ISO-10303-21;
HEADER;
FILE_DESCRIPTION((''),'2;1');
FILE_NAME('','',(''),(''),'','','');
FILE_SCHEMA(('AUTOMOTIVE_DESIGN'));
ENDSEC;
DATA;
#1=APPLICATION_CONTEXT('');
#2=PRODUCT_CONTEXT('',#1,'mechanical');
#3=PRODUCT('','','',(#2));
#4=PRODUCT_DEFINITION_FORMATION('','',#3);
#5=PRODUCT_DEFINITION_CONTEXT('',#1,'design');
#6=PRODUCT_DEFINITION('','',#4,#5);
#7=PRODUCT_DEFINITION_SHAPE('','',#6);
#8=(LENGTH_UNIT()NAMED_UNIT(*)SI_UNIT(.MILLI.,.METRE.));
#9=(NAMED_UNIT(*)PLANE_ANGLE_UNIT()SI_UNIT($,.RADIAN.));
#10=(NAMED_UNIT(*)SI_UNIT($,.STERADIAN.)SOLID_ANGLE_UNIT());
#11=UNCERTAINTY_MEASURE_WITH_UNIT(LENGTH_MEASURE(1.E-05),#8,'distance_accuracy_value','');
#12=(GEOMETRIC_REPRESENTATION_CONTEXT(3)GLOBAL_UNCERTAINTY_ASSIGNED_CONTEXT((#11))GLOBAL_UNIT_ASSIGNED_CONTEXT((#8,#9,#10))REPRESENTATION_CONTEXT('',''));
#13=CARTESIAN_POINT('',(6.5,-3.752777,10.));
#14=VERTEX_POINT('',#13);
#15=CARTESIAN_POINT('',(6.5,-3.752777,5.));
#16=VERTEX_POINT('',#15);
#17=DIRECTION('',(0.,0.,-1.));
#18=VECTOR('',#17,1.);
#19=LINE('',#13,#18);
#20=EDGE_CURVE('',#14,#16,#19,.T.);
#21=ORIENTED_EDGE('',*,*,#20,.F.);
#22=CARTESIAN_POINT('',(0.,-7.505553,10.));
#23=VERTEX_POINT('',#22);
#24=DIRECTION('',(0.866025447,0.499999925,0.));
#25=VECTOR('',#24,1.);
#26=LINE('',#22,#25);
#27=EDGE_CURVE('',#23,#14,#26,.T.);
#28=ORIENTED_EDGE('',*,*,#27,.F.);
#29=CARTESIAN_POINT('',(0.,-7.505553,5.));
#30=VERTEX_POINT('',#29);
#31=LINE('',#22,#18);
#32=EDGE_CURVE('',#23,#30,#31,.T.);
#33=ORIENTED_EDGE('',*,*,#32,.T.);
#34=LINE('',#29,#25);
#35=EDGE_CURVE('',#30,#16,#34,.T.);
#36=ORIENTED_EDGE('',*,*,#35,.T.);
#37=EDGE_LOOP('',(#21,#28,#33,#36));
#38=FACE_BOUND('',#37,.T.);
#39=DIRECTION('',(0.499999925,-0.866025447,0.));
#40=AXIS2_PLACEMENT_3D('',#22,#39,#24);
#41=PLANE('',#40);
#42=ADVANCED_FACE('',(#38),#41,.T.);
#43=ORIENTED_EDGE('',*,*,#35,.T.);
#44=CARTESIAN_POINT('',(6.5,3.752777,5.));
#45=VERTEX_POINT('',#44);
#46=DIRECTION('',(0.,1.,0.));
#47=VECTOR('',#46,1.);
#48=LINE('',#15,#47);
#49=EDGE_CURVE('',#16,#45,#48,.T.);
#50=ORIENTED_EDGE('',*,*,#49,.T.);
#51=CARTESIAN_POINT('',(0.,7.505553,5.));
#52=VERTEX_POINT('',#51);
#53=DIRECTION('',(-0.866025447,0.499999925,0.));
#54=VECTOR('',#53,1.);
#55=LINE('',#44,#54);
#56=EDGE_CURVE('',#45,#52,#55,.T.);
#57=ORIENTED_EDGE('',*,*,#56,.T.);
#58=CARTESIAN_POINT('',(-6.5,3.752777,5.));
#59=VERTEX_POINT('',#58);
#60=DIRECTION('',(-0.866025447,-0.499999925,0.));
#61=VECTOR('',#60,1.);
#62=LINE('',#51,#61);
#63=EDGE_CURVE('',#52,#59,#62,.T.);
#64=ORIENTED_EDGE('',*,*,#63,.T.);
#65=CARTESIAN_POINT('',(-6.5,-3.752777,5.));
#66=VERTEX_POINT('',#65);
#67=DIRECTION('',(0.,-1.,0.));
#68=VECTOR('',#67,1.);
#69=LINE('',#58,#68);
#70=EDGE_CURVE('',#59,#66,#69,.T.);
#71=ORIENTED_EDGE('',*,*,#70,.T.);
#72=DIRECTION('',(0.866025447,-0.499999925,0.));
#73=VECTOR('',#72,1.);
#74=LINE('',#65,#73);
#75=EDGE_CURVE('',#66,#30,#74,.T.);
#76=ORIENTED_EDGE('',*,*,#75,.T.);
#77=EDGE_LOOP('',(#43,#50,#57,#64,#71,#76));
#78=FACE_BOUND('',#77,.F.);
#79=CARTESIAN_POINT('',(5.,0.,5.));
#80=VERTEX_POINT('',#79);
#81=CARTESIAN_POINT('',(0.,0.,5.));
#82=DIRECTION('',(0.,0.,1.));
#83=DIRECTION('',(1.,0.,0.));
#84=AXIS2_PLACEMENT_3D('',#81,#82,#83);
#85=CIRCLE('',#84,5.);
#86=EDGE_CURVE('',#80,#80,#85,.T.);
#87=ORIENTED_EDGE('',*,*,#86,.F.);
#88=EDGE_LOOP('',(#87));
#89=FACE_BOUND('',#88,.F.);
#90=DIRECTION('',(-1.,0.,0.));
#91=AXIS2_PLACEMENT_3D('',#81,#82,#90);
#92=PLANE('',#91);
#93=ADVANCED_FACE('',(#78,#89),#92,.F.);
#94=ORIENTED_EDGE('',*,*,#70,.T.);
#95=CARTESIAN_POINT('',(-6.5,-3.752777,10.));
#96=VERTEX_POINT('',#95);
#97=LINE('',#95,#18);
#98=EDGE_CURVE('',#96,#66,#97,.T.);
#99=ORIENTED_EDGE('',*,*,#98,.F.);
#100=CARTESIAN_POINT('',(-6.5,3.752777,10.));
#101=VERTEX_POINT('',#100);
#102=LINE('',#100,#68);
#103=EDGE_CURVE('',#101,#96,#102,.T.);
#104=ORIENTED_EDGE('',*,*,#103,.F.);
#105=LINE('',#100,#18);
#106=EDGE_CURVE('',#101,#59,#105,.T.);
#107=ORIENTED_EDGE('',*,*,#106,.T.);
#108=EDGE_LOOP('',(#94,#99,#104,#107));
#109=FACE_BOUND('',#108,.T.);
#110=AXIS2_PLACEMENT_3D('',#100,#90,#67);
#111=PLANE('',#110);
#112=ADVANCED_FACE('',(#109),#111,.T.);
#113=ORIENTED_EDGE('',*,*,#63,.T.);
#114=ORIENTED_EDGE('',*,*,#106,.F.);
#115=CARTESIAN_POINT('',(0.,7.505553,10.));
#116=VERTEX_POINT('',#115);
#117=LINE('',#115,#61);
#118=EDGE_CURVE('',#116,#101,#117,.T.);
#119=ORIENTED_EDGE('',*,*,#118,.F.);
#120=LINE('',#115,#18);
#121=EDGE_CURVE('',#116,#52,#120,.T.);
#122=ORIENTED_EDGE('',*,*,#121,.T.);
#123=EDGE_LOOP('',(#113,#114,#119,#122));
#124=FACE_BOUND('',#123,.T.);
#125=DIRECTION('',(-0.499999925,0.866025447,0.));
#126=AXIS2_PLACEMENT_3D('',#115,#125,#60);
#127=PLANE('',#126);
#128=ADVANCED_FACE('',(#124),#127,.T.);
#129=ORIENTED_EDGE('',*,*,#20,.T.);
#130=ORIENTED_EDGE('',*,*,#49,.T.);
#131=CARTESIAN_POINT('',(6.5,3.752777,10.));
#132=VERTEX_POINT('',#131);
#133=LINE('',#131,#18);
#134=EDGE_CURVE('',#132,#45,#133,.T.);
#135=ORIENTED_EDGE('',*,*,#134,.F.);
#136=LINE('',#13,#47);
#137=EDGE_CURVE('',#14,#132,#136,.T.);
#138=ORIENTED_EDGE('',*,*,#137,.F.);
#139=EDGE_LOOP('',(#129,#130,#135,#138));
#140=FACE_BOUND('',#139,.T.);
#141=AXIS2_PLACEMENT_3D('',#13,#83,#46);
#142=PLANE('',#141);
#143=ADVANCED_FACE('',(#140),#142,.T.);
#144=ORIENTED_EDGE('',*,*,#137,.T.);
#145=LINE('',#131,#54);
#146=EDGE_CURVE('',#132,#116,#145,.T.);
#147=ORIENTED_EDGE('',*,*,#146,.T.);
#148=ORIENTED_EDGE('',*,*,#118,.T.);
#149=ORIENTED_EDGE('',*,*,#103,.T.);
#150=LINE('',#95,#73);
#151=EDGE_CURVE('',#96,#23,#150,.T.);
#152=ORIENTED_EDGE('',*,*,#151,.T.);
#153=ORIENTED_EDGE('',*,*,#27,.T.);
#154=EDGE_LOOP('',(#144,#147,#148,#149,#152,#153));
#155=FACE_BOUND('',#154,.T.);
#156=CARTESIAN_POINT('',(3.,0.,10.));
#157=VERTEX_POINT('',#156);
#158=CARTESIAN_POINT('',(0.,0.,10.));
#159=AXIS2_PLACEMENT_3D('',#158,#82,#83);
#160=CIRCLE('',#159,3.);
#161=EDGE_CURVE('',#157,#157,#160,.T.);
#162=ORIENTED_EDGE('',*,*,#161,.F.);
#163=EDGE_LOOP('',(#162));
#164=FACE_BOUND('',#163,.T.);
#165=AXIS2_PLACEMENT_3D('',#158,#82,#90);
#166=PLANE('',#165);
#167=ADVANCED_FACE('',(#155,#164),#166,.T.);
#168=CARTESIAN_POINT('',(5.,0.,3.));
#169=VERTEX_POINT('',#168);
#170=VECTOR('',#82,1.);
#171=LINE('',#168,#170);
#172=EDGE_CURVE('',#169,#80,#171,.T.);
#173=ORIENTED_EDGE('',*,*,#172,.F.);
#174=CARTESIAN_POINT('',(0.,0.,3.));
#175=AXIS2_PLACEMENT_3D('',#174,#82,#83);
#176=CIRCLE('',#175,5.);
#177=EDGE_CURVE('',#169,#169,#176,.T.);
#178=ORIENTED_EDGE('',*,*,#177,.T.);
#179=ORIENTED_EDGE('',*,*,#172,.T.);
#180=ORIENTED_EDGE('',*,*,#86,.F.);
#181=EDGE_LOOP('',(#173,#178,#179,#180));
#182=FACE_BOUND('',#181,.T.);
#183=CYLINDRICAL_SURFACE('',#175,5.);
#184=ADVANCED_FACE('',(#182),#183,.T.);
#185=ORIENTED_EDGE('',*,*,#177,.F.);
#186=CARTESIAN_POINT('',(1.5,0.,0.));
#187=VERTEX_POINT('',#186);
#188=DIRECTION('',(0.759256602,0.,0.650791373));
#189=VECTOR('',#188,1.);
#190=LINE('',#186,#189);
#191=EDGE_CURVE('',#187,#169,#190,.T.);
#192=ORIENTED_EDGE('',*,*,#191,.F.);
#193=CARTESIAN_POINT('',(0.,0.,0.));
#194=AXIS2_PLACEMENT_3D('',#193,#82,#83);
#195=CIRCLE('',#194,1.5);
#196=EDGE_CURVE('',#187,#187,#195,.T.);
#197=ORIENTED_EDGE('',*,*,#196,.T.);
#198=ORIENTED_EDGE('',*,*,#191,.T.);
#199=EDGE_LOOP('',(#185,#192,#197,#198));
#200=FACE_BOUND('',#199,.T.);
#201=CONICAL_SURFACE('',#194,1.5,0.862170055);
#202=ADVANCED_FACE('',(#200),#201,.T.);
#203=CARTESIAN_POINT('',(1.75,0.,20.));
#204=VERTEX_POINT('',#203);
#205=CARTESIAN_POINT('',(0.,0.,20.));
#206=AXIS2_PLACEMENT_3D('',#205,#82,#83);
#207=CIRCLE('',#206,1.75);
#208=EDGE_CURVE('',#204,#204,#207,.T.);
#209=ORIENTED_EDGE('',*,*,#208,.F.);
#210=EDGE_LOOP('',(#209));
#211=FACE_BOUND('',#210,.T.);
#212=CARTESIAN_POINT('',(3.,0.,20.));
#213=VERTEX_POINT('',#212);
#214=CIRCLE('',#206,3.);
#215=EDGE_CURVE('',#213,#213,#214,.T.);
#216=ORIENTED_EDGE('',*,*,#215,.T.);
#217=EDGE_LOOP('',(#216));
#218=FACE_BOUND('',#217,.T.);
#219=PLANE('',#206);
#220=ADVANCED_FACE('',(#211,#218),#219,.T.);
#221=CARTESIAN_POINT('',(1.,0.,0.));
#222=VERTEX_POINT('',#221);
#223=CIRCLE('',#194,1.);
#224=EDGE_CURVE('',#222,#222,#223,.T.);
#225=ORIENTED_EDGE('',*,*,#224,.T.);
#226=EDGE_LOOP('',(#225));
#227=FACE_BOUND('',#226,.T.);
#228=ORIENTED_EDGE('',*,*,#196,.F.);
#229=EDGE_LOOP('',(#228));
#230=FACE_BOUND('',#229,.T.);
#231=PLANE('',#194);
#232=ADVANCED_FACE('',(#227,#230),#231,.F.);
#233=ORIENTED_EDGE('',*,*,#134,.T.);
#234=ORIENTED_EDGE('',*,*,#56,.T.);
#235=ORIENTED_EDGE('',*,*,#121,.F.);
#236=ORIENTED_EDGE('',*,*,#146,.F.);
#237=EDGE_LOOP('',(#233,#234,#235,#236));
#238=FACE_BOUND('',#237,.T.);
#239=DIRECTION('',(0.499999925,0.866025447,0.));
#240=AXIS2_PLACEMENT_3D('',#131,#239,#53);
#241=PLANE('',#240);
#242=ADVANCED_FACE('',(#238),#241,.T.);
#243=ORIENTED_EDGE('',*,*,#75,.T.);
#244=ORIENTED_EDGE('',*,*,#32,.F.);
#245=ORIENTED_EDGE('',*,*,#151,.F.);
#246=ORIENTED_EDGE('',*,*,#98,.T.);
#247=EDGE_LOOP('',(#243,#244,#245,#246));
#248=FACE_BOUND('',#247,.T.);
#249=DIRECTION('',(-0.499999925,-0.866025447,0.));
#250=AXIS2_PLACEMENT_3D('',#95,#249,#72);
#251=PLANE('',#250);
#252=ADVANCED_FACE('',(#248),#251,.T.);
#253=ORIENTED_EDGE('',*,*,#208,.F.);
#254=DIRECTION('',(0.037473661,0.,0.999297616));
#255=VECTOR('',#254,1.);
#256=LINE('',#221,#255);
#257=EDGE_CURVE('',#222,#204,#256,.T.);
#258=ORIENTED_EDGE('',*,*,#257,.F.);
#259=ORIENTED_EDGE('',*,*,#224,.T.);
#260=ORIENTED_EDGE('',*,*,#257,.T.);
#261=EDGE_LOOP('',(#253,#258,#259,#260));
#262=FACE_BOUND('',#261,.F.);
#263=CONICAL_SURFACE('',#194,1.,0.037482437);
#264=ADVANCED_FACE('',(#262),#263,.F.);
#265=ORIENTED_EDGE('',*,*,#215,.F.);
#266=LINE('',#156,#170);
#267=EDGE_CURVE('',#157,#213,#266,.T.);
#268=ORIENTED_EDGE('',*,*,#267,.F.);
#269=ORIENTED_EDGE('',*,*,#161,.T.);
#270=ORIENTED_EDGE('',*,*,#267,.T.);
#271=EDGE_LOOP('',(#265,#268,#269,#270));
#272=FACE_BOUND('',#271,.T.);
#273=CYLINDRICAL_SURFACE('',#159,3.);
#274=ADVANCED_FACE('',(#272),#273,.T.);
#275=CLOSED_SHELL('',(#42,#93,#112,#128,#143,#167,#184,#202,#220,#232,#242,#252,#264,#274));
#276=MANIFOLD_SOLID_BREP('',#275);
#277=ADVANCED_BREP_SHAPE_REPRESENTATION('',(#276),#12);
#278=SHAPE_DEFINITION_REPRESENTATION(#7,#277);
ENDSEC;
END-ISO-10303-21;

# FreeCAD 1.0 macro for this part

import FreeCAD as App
import Part
import Sketcher
Q = App.Units.Quantity


def add_polygon(sketch, points):
    """Adds a closed chain of lines whose ends are joined by coincident constraints."""
    first, n = sketch.GeometryCount, len(points)
    for a, b in zip(points, points[1:] + points[:1]):
        sketch.addGeometry(Part.LineSegment(App.Vector(*a, 0), App.Vector(*b, 0)), False)
    for i in range(n):
        sketch.addConstraint(Sketcher.Constraint("Coincident", first + i, 2, first + (i + 1) % n, 1))

doc = App.newDocument("Part")
body = doc.addObject("PartDesign::Body", "Body")

sketch1 = body.newObject("Sketcher::SketchObject", "Sketch")
sketch1.AttachmentSupport = (doc.getObject("XZ_Plane"), [""])
sketch1.MapMode = "FlatFace"
add_polygon(sketch1, [(0, 20), (0, 0), (1.5, 0), (5, 3), (5, 10), (3, 10), (3, 20)])
sketch1.addConstraint([
    Sketcher.Constraint("Vertical", 0),
    Sketcher.Constraint("Horizontal", 1),
    Sketcher.Constraint("Vertical", 3),
    Sketcher.Constraint("Horizontal", 4),
    Sketcher.Constraint("Vertical", 5),
    Sketcher.Constraint("Horizontal", 6),
    Sketcher.Constraint("Coincident", 0, 2, -1, 1),
    Sketcher.Constraint("DistanceX", 4, 2, 4, 1, Q("2 mm")),
    Sketcher.Constraint("DistanceX", 6, 2, 6, 1, Q("3 mm")),
    Sketcher.Constraint("DistanceY", 0, 2, 0, 1, Q("20 mm")),
    Sketcher.Constraint("DistanceY", 3, 1, 3, 2, Q("7 mm")),
    Sketcher.Constraint("DistanceY", 5, 1, 5, 2, Q("10 mm")),
    Sketcher.Constraint("DistanceX", 1, 1, 1, 2, Q("1.5 mm")),
])
revolution = body.newObject("PartDesign::Revolution", "Revolution")
revolution.Profile = sketch1
revolution.ReferenceAxis = (sketch1, ["V_Axis"])
revolution.Angle = 360

sketch2 = body.newObject("Sketcher::SketchObject", "Sketch001")
sketch2.AttachmentSupport = (doc.getObject("XY_Plane"), [""])
sketch2.MapMode = "FlatFace"
sketch2.AttachmentOffset = App.Placement(App.Vector(0, 0, 10), App.Rotation())
add_polygon(sketch2, [(-6, -4), (0, -8), (6, -4), (6, 4), (0, 8), (-6, 4)])
sketch2.addConstraint([
    Sketcher.Constraint("Vertical", 2),
    Sketcher.Constraint("Vertical", 5),
    Sketcher.Constraint("Symmetric", 0, 2, 3, 2, -1, 1),
    Sketcher.Constraint("Symmetric", 1, 2, 4, 2, -1, 1),
    Sketcher.Constraint("PointOnObject", 0, 2, -2),
    Sketcher.Constraint("Parallel", 0, 3),
    Sketcher.Constraint("Horizontal", 2, 2, 4, 2),
    Sketcher.Constraint("Angle", 0, Q("-29.999995 deg")),
    Sketcher.Constraint("DistanceX", 4, 2, 2, 2, Q("13 mm")),
    Sketcher.Constraint("DistanceY", 2, 1, 2, 2, Q("7.505554 mm")),
])
pad1 = body.newObject("PartDesign::Pad", "Pad")
pad1.Profile = sketch2
pad1.Length = 5
pad1.Reversed = True

sketch3 = body.newObject("Sketcher::SketchObject", "Sketch002")
sketch3.AttachmentSupport = (doc.getObject("XZ_Plane"), [""])
sketch3.MapMode = "FlatFace"
add_polygon(sketch3, [(1.8, 20), (0, 20), (0, 0), (1, 0)])
sketch3.addConstraint([
    Sketcher.Constraint("Horizontal", 0),
    Sketcher.Constraint("Vertical", 1),
    Sketcher.Constraint("Horizontal", 2),
    Sketcher.Constraint("Coincident", 1, 2, -1, 1),
    Sketcher.Constraint("DistanceX", 2, 1, 2, 2, Q("1 mm")),
    Sketcher.Constraint("DistanceY", 1, 2, 1, 1, Q("20 mm")),
    Sketcher.Constraint("DistanceX", 0, 2, 0, 1, Q("1.75 mm")),
])
groove = body.newObject("PartDesign::Groove", "Groove")
groove.Profile = sketch3
groove.ReferenceAxis = (sketch3, ["V_Axis"])
groove.Angle = 360

doc.recompute()
